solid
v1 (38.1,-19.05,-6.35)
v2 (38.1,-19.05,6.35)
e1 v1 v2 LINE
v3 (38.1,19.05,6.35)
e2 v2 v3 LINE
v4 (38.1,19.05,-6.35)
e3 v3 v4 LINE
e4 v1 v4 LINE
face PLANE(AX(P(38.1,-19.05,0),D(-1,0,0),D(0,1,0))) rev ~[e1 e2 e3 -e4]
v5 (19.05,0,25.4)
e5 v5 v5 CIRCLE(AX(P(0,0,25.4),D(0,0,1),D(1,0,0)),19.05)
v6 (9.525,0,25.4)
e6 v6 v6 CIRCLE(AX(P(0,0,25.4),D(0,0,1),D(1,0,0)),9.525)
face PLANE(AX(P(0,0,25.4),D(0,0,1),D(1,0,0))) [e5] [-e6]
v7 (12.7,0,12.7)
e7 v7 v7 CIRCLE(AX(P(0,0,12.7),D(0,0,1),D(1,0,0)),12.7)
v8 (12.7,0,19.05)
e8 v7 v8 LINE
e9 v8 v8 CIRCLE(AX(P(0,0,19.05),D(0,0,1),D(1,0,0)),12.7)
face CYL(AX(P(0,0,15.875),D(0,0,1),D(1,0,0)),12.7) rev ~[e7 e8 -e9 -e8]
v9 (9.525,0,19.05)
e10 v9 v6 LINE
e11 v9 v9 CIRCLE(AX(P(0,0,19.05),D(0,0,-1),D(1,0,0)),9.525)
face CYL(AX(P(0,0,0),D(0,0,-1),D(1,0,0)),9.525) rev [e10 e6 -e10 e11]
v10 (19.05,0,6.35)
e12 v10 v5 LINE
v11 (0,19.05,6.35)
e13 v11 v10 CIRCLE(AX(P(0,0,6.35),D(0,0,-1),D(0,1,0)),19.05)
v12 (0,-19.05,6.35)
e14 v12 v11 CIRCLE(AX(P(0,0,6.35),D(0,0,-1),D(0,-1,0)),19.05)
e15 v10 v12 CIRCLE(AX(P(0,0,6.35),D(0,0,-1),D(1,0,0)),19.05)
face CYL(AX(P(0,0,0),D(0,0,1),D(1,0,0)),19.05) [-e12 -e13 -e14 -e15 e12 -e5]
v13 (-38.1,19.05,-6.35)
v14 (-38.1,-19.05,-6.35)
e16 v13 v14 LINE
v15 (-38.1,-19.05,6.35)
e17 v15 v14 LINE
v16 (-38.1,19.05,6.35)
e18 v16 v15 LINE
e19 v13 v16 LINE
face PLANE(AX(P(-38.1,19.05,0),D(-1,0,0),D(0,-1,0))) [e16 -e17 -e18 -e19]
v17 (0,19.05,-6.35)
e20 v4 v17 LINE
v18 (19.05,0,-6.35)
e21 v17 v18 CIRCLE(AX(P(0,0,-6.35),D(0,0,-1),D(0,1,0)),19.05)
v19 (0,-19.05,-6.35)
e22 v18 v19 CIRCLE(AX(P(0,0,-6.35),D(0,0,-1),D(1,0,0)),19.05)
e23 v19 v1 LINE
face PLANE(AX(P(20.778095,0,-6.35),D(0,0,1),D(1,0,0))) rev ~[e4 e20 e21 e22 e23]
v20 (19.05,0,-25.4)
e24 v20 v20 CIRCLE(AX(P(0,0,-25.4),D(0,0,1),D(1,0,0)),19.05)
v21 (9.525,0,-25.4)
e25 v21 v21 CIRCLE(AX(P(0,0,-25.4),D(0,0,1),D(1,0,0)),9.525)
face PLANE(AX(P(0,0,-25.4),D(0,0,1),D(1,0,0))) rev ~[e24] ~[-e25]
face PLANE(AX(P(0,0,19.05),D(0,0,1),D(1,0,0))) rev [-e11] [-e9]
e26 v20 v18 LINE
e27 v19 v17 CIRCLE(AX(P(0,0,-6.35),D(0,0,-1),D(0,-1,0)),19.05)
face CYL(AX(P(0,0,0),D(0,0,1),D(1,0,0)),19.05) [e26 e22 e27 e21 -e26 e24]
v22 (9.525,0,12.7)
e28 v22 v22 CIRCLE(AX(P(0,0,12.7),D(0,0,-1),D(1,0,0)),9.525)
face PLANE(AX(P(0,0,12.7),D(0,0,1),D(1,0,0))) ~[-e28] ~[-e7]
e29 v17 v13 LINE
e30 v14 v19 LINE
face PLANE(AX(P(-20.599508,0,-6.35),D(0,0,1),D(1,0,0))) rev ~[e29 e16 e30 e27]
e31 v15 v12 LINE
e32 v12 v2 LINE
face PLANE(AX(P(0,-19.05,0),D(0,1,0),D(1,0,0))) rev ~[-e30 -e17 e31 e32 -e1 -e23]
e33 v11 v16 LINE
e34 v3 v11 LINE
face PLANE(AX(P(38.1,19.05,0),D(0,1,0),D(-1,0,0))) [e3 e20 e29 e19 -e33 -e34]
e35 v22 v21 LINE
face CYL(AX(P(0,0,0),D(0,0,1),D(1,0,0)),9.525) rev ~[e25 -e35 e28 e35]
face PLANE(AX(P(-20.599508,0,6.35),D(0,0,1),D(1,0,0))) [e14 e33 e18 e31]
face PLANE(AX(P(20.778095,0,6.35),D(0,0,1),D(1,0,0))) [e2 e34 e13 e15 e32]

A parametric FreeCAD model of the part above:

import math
import FreeCAD as App
import Part
import Sketcher
from FreeCAD import Vector
Q = App.Units.Quantity

doc = App.newDocument("Part")
params = doc.addObject("Spreadsheet::Sheet", "Params")
for row, (alias, value) in enumerate([
    ("sketch1_diameter", "1.5 in"),
    ("sketch1_diameter2", "0.75 in"),
    ("pad1_length", "1 in"),
    ("sketch2_diameter", "1.5 in"),
    ("sketch2_diameter2", "0.75 in"),
    ("pad2_length", "1 in"),
    ("sketch3_radius", "0.75 in"),
    ("pad3_length", "0.5 in"),
    ("sketch4_width", "0.5 in"),
    ("sketch4_height", "0.25 in"),
    ("groove_angle", "360 deg"),
], start=1):
    params.set(f"A{row}", alias)
    params.set(f"B{row}", "=" + value)
    params.setAlias(f"B{row}", alias)

body = doc.addObject("PartDesign::Body", "Body")

# Sketch on XY plane
sketch1 = body.newObject("Sketcher::SketchObject", "Sketch")
sketch1.AttachmentSupport = (doc.getObject("XY_Plane"), [""])
sketch1.MapMode = "FlatFace"
sketch1.addGeometry([
    Part.Circle(Vector(0, 0, 0), Vector(0, 0, 1), 19),
    Part.Circle(Vector(0, 0, 0), Vector(0, 0, 1), 10),
], False)
sketch1.addConstraint([
    Sketcher.Constraint("Coincident", 0, 3, -1, 1),
    Sketcher.Constraint("Coincident", 1, 3, -1, 1),
    Sketcher.Constraint("Diameter", 0, Q("1.5 in")),
    Sketcher.Constraint("Diameter", 1, Q("0.75 in")),
])
sketch1.setExpression("Constraints[2]", "Params.sketch1_diameter")
sketch1.setExpression("Constraints[3]", "Params.sketch1_diameter2")
pad1 = body.newObject("PartDesign::Pad", "Pad")
pad1.Profile = sketch1
pad1.setExpression("Length", "Params.pad1_length")

# Sketch on XY plane
sketch2 = body.newObject("Sketcher::SketchObject", "Sketch001")
sketch2.AttachmentSupport = (doc.getObject("XY_Plane"), [""])
sketch2.MapMode = "FlatFace"
sketch2.addGeometry([
    Part.Circle(Vector(0, 0, 0), Vector(0, 0, 1), 19),
    Part.Circle(Vector(0, 0, 0), Vector(0, 0, 1), 10),
], False)
sketch2.addConstraint([
    Sketcher.Constraint("Coincident", 0, 3, -1, 1),
    Sketcher.Constraint("Coincident", 1, 3, -1, 1),
    Sketcher.Constraint("Diameter", 0, Q("1.5 in")),
    Sketcher.Constraint("Diameter", 1, Q("0.75 in")),
])
sketch2.setExpression("Constraints[2]", "Params.sketch2_diameter")
sketch2.setExpression("Constraints[3]", "Params.sketch2_diameter2")
pad2 = body.newObject("PartDesign::Pad", "Pad001")
pad2.Profile = sketch2
pad2.setExpression("Length", "Params.pad2_length")
pad2.Reversed = True

# Sketch on XY plane
sketch3 = body.newObject("Sketcher::SketchObject", "Sketch002")
sketch3.AttachmentSupport = (doc.getObject("XY_Plane"), [""])
sketch3.MapMode = "FlatFace"
sketch3.addGeometry([
    Part.ArcOfCircle(Part.Circle(Vector(0, 0, 0), Vector(0, 0, 1), 19), math.radians(0), math.radians(90)),  # 0
    Part.ArcOfCircle(Part.Circle(Vector(0, 0, 0), Vector(0, 0, 1), 19), math.radians(-90), math.radians(0)),  # 1
    Part.LineSegment(Vector(0, -19, 0), Vector(38, -19, 0)),  # 2
    Part.LineSegment(Vector(38, -19, 0), Vector(38, 19, 0)),  # 3
    Part.LineSegment(Vector(38, 19, 0), Vector(0, 19, 0)),  # 4
    Part.ArcOfCircle(Part.Circle(Vector(0, 0, 0), Vector(0, 0, 1), 19), math.radians(90), math.radians(270)),  # 5
    Part.LineSegment(Vector(0, 19, 0), Vector(-38, 19, 0)),  # 6
    Part.LineSegment(Vector(-38, 19, 0), Vector(-38, -19, 0)),  # 7
    Part.LineSegment(Vector(-38, -19, 0), Vector(0, -19, 0)),  # 8
], False)
sketch3.addConstraint([
    Sketcher.Constraint("Tangent", 0, 1, 1, 2),
    Sketcher.Constraint("Tangent", 1, 1, 2, 1),
    Sketcher.Constraint("Coincident", 2, 2, 3, 1),
    Sketcher.Constraint("Coincident", 3, 2, 4, 1),
    Sketcher.Constraint("Tangent", 4, 2, 0, 2),
    Sketcher.Constraint("Tangent", 5, 1, 6, 1),
    Sketcher.Constraint("Coincident", 6, 2, 7, 1),
    Sketcher.Constraint("Coincident", 7, 2, 8, 1),
    Sketcher.Constraint("Tangent", 8, 2, 5, 2),
    Sketcher.Constraint("Horizontal", 2),
    Sketcher.Constraint("Vertical", 3),
    Sketcher.Constraint("Horizontal", 4),
    Sketcher.Constraint("Horizontal", 6),
    Sketcher.Constraint("Vertical", 7),
    Sketcher.Constraint("Horizontal", 8),
    Sketcher.Constraint("Coincident", 0, 3, -1, 1),
    Sketcher.Constraint("Coincident", 5, 3, -1, 1),
    Sketcher.Constraint("Coincident", 8, 2, 1, 1),
    Sketcher.Constraint("PointOnObject", 0, 1, -1),
    Sketcher.Constraint("Equal", 4, 6),
    Sketcher.Constraint("Equal", 8, 3),
    Sketcher.Constraint("Radius", 0, Q("0.75 in")),
])
sketch3.setExpression("Constraints[21]", "Params.sketch3_radius")
pad3 = body.newObject("PartDesign::Pad", "Pad002")
pad3.Profile = sketch3
pad3.setExpression("Length", "Params.pad3_length")
pad3.Midplane = True

# Sketch on XZ plane
sketch4 = body.newObject("Sketcher::SketchObject", "Sketch003")
sketch4.AttachmentSupport = (doc.getObject("XZ_Plane"), [""])
sketch4.MapMode = "FlatFace"
sketch4.addGeometry([
    Part.LineSegment(Vector(0, 19, 0), Vector(0, 13, 0)),
    Part.LineSegment(Vector(0, 13, 0), Vector(13, 13, 0)),
    Part.LineSegment(Vector(13, 13, 0), Vector(13, 19, 0)),
    Part.LineSegment(Vector(13, 19, 0), Vector(0, 19, 0)),
], False)
sketch4.addConstraint([
    Sketcher.Constraint("Coincident", 0, 2, 1, 1),
    Sketcher.Constraint("Coincident", 1, 2, 2, 1),
    Sketcher.Constraint("Coincident", 2, 2, 3, 1),
    Sketcher.Constraint("Coincident", 3, 2, 0, 1),
    Sketcher.Constraint("Vertical", 0),
    Sketcher.Constraint("Horizontal", 1),
    Sketcher.Constraint("Vertical", 2),
    Sketcher.Constraint("Horizontal", 3),
    Sketcher.Constraint("PointOnObject", 0, 2, -2),
    Sketcher.Constraint("DistanceX", 1, 1, 1, 2, Q("0.5 in")),
    Sketcher.Constraint("DistanceY", 0, 2, 0, 1, Q("0.25 in")),
    Sketcher.Constraint("DistanceY", -1, 1, 0, 2, Q("0.5 in")),
])
sketch4.setExpression("Constraints[9]", "Params.sketch4_width")
sketch4.setExpression("Constraints[10]", "Params.sketch4_height")
groove = body.newObject("PartDesign::Groove", "Groove")
groove.Profile = sketch4
groove.ReferenceAxis = (sketch4, ["V_Axis"])
groove.setExpression("Angle", "Params.groove_angle")

doc.recompute()
